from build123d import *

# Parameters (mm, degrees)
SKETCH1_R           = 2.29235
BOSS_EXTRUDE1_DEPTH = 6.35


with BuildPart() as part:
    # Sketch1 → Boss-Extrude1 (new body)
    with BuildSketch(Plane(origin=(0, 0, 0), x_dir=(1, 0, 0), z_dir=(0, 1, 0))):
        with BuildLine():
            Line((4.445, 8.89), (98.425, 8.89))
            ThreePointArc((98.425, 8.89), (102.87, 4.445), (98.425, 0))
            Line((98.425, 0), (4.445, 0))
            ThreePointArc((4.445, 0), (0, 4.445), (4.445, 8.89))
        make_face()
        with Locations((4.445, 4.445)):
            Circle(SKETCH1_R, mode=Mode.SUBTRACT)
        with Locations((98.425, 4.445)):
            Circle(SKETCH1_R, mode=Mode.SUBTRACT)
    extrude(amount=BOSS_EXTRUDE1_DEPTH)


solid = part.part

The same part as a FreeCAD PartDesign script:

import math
import FreeCAD as App
import Part
import Sketcher

V = App.Vector
Q = App.Units.Quantity

doc = App.newDocument("Part")
body = doc.addObject("PartDesign::Body", "Body")

sketch1 = doc.addObject("Sketcher::SketchObject", "Sketch")
body.addObject(sketch1)
sketch1.AttachmentSupport = (doc.XZ_Plane, [""])
sketch1.MapMode = "FlatFace"
sketch1.addGeometry([
    Part.LineSegment(V(98.4, -8.9, 0), V(4.4, -8.9, 0)),
    Part.ArcOfCircle(Part.Circle(V(4.4, -4.4, 0), V(0, 0, 1), 4.4), math.radians(90), math.radians(270)),
    Part.LineSegment(V(4.4, 0, 0), V(98.4, 0, 0)),
    Part.ArcOfCircle(Part.Circle(V(98.4, -4.4, 0), V(0, 0, 1), 4.4), math.radians(-90), math.radians(90)),
    Part.Circle(V(98.4, -4.4, 0), V(0, 0, 1), 2.3),
    Part.Circle(V(4.4, -4.4, 0), V(0, 0, 1), 2.3),
], False)
sketch1.addConstraint([
    Sketcher.Constraint("Tangent", 0, 2, 1, 2),
    Sketcher.Constraint("Tangent", 1, 1, 2, 1),
    Sketcher.Constraint("Tangent", 2, 2, 3, 2),
    Sketcher.Constraint("Tangent", 3, 1, 0, 1),
    Sketcher.Constraint("Horizontal", 0),
    Sketcher.Constraint("Horizontal", 2),
    Sketcher.Constraint("Coincident", 4, 3, 3, 3),
    Sketcher.Constraint("Coincident", 5, 3, 1, 3),
    Sketcher.Constraint("Equal", 4, 5),
    Sketcher.Constraint("PointOnObject", 1, 1, -1),
    Sketcher.Constraint("DistanceX", 0, 2, 0, 1, Q("3.7 in")),
    Sketcher.Constraint("Radius", 1, Q("0.175 in")),
    Sketcher.Constraint("Diameter", 4, Q("0.1805 in")),
    Sketcher.Constraint("DistanceX", -1, 1, 1, 3, Q("0.175 in")),
])
pad1 = doc.addObject("PartDesign::Pad", "Pad")
body.addObject(pad1)
pad1.Profile = sketch1
pad1.Length = Q("0.25 in")
pad1.Reversed = True

doc.recompute()
